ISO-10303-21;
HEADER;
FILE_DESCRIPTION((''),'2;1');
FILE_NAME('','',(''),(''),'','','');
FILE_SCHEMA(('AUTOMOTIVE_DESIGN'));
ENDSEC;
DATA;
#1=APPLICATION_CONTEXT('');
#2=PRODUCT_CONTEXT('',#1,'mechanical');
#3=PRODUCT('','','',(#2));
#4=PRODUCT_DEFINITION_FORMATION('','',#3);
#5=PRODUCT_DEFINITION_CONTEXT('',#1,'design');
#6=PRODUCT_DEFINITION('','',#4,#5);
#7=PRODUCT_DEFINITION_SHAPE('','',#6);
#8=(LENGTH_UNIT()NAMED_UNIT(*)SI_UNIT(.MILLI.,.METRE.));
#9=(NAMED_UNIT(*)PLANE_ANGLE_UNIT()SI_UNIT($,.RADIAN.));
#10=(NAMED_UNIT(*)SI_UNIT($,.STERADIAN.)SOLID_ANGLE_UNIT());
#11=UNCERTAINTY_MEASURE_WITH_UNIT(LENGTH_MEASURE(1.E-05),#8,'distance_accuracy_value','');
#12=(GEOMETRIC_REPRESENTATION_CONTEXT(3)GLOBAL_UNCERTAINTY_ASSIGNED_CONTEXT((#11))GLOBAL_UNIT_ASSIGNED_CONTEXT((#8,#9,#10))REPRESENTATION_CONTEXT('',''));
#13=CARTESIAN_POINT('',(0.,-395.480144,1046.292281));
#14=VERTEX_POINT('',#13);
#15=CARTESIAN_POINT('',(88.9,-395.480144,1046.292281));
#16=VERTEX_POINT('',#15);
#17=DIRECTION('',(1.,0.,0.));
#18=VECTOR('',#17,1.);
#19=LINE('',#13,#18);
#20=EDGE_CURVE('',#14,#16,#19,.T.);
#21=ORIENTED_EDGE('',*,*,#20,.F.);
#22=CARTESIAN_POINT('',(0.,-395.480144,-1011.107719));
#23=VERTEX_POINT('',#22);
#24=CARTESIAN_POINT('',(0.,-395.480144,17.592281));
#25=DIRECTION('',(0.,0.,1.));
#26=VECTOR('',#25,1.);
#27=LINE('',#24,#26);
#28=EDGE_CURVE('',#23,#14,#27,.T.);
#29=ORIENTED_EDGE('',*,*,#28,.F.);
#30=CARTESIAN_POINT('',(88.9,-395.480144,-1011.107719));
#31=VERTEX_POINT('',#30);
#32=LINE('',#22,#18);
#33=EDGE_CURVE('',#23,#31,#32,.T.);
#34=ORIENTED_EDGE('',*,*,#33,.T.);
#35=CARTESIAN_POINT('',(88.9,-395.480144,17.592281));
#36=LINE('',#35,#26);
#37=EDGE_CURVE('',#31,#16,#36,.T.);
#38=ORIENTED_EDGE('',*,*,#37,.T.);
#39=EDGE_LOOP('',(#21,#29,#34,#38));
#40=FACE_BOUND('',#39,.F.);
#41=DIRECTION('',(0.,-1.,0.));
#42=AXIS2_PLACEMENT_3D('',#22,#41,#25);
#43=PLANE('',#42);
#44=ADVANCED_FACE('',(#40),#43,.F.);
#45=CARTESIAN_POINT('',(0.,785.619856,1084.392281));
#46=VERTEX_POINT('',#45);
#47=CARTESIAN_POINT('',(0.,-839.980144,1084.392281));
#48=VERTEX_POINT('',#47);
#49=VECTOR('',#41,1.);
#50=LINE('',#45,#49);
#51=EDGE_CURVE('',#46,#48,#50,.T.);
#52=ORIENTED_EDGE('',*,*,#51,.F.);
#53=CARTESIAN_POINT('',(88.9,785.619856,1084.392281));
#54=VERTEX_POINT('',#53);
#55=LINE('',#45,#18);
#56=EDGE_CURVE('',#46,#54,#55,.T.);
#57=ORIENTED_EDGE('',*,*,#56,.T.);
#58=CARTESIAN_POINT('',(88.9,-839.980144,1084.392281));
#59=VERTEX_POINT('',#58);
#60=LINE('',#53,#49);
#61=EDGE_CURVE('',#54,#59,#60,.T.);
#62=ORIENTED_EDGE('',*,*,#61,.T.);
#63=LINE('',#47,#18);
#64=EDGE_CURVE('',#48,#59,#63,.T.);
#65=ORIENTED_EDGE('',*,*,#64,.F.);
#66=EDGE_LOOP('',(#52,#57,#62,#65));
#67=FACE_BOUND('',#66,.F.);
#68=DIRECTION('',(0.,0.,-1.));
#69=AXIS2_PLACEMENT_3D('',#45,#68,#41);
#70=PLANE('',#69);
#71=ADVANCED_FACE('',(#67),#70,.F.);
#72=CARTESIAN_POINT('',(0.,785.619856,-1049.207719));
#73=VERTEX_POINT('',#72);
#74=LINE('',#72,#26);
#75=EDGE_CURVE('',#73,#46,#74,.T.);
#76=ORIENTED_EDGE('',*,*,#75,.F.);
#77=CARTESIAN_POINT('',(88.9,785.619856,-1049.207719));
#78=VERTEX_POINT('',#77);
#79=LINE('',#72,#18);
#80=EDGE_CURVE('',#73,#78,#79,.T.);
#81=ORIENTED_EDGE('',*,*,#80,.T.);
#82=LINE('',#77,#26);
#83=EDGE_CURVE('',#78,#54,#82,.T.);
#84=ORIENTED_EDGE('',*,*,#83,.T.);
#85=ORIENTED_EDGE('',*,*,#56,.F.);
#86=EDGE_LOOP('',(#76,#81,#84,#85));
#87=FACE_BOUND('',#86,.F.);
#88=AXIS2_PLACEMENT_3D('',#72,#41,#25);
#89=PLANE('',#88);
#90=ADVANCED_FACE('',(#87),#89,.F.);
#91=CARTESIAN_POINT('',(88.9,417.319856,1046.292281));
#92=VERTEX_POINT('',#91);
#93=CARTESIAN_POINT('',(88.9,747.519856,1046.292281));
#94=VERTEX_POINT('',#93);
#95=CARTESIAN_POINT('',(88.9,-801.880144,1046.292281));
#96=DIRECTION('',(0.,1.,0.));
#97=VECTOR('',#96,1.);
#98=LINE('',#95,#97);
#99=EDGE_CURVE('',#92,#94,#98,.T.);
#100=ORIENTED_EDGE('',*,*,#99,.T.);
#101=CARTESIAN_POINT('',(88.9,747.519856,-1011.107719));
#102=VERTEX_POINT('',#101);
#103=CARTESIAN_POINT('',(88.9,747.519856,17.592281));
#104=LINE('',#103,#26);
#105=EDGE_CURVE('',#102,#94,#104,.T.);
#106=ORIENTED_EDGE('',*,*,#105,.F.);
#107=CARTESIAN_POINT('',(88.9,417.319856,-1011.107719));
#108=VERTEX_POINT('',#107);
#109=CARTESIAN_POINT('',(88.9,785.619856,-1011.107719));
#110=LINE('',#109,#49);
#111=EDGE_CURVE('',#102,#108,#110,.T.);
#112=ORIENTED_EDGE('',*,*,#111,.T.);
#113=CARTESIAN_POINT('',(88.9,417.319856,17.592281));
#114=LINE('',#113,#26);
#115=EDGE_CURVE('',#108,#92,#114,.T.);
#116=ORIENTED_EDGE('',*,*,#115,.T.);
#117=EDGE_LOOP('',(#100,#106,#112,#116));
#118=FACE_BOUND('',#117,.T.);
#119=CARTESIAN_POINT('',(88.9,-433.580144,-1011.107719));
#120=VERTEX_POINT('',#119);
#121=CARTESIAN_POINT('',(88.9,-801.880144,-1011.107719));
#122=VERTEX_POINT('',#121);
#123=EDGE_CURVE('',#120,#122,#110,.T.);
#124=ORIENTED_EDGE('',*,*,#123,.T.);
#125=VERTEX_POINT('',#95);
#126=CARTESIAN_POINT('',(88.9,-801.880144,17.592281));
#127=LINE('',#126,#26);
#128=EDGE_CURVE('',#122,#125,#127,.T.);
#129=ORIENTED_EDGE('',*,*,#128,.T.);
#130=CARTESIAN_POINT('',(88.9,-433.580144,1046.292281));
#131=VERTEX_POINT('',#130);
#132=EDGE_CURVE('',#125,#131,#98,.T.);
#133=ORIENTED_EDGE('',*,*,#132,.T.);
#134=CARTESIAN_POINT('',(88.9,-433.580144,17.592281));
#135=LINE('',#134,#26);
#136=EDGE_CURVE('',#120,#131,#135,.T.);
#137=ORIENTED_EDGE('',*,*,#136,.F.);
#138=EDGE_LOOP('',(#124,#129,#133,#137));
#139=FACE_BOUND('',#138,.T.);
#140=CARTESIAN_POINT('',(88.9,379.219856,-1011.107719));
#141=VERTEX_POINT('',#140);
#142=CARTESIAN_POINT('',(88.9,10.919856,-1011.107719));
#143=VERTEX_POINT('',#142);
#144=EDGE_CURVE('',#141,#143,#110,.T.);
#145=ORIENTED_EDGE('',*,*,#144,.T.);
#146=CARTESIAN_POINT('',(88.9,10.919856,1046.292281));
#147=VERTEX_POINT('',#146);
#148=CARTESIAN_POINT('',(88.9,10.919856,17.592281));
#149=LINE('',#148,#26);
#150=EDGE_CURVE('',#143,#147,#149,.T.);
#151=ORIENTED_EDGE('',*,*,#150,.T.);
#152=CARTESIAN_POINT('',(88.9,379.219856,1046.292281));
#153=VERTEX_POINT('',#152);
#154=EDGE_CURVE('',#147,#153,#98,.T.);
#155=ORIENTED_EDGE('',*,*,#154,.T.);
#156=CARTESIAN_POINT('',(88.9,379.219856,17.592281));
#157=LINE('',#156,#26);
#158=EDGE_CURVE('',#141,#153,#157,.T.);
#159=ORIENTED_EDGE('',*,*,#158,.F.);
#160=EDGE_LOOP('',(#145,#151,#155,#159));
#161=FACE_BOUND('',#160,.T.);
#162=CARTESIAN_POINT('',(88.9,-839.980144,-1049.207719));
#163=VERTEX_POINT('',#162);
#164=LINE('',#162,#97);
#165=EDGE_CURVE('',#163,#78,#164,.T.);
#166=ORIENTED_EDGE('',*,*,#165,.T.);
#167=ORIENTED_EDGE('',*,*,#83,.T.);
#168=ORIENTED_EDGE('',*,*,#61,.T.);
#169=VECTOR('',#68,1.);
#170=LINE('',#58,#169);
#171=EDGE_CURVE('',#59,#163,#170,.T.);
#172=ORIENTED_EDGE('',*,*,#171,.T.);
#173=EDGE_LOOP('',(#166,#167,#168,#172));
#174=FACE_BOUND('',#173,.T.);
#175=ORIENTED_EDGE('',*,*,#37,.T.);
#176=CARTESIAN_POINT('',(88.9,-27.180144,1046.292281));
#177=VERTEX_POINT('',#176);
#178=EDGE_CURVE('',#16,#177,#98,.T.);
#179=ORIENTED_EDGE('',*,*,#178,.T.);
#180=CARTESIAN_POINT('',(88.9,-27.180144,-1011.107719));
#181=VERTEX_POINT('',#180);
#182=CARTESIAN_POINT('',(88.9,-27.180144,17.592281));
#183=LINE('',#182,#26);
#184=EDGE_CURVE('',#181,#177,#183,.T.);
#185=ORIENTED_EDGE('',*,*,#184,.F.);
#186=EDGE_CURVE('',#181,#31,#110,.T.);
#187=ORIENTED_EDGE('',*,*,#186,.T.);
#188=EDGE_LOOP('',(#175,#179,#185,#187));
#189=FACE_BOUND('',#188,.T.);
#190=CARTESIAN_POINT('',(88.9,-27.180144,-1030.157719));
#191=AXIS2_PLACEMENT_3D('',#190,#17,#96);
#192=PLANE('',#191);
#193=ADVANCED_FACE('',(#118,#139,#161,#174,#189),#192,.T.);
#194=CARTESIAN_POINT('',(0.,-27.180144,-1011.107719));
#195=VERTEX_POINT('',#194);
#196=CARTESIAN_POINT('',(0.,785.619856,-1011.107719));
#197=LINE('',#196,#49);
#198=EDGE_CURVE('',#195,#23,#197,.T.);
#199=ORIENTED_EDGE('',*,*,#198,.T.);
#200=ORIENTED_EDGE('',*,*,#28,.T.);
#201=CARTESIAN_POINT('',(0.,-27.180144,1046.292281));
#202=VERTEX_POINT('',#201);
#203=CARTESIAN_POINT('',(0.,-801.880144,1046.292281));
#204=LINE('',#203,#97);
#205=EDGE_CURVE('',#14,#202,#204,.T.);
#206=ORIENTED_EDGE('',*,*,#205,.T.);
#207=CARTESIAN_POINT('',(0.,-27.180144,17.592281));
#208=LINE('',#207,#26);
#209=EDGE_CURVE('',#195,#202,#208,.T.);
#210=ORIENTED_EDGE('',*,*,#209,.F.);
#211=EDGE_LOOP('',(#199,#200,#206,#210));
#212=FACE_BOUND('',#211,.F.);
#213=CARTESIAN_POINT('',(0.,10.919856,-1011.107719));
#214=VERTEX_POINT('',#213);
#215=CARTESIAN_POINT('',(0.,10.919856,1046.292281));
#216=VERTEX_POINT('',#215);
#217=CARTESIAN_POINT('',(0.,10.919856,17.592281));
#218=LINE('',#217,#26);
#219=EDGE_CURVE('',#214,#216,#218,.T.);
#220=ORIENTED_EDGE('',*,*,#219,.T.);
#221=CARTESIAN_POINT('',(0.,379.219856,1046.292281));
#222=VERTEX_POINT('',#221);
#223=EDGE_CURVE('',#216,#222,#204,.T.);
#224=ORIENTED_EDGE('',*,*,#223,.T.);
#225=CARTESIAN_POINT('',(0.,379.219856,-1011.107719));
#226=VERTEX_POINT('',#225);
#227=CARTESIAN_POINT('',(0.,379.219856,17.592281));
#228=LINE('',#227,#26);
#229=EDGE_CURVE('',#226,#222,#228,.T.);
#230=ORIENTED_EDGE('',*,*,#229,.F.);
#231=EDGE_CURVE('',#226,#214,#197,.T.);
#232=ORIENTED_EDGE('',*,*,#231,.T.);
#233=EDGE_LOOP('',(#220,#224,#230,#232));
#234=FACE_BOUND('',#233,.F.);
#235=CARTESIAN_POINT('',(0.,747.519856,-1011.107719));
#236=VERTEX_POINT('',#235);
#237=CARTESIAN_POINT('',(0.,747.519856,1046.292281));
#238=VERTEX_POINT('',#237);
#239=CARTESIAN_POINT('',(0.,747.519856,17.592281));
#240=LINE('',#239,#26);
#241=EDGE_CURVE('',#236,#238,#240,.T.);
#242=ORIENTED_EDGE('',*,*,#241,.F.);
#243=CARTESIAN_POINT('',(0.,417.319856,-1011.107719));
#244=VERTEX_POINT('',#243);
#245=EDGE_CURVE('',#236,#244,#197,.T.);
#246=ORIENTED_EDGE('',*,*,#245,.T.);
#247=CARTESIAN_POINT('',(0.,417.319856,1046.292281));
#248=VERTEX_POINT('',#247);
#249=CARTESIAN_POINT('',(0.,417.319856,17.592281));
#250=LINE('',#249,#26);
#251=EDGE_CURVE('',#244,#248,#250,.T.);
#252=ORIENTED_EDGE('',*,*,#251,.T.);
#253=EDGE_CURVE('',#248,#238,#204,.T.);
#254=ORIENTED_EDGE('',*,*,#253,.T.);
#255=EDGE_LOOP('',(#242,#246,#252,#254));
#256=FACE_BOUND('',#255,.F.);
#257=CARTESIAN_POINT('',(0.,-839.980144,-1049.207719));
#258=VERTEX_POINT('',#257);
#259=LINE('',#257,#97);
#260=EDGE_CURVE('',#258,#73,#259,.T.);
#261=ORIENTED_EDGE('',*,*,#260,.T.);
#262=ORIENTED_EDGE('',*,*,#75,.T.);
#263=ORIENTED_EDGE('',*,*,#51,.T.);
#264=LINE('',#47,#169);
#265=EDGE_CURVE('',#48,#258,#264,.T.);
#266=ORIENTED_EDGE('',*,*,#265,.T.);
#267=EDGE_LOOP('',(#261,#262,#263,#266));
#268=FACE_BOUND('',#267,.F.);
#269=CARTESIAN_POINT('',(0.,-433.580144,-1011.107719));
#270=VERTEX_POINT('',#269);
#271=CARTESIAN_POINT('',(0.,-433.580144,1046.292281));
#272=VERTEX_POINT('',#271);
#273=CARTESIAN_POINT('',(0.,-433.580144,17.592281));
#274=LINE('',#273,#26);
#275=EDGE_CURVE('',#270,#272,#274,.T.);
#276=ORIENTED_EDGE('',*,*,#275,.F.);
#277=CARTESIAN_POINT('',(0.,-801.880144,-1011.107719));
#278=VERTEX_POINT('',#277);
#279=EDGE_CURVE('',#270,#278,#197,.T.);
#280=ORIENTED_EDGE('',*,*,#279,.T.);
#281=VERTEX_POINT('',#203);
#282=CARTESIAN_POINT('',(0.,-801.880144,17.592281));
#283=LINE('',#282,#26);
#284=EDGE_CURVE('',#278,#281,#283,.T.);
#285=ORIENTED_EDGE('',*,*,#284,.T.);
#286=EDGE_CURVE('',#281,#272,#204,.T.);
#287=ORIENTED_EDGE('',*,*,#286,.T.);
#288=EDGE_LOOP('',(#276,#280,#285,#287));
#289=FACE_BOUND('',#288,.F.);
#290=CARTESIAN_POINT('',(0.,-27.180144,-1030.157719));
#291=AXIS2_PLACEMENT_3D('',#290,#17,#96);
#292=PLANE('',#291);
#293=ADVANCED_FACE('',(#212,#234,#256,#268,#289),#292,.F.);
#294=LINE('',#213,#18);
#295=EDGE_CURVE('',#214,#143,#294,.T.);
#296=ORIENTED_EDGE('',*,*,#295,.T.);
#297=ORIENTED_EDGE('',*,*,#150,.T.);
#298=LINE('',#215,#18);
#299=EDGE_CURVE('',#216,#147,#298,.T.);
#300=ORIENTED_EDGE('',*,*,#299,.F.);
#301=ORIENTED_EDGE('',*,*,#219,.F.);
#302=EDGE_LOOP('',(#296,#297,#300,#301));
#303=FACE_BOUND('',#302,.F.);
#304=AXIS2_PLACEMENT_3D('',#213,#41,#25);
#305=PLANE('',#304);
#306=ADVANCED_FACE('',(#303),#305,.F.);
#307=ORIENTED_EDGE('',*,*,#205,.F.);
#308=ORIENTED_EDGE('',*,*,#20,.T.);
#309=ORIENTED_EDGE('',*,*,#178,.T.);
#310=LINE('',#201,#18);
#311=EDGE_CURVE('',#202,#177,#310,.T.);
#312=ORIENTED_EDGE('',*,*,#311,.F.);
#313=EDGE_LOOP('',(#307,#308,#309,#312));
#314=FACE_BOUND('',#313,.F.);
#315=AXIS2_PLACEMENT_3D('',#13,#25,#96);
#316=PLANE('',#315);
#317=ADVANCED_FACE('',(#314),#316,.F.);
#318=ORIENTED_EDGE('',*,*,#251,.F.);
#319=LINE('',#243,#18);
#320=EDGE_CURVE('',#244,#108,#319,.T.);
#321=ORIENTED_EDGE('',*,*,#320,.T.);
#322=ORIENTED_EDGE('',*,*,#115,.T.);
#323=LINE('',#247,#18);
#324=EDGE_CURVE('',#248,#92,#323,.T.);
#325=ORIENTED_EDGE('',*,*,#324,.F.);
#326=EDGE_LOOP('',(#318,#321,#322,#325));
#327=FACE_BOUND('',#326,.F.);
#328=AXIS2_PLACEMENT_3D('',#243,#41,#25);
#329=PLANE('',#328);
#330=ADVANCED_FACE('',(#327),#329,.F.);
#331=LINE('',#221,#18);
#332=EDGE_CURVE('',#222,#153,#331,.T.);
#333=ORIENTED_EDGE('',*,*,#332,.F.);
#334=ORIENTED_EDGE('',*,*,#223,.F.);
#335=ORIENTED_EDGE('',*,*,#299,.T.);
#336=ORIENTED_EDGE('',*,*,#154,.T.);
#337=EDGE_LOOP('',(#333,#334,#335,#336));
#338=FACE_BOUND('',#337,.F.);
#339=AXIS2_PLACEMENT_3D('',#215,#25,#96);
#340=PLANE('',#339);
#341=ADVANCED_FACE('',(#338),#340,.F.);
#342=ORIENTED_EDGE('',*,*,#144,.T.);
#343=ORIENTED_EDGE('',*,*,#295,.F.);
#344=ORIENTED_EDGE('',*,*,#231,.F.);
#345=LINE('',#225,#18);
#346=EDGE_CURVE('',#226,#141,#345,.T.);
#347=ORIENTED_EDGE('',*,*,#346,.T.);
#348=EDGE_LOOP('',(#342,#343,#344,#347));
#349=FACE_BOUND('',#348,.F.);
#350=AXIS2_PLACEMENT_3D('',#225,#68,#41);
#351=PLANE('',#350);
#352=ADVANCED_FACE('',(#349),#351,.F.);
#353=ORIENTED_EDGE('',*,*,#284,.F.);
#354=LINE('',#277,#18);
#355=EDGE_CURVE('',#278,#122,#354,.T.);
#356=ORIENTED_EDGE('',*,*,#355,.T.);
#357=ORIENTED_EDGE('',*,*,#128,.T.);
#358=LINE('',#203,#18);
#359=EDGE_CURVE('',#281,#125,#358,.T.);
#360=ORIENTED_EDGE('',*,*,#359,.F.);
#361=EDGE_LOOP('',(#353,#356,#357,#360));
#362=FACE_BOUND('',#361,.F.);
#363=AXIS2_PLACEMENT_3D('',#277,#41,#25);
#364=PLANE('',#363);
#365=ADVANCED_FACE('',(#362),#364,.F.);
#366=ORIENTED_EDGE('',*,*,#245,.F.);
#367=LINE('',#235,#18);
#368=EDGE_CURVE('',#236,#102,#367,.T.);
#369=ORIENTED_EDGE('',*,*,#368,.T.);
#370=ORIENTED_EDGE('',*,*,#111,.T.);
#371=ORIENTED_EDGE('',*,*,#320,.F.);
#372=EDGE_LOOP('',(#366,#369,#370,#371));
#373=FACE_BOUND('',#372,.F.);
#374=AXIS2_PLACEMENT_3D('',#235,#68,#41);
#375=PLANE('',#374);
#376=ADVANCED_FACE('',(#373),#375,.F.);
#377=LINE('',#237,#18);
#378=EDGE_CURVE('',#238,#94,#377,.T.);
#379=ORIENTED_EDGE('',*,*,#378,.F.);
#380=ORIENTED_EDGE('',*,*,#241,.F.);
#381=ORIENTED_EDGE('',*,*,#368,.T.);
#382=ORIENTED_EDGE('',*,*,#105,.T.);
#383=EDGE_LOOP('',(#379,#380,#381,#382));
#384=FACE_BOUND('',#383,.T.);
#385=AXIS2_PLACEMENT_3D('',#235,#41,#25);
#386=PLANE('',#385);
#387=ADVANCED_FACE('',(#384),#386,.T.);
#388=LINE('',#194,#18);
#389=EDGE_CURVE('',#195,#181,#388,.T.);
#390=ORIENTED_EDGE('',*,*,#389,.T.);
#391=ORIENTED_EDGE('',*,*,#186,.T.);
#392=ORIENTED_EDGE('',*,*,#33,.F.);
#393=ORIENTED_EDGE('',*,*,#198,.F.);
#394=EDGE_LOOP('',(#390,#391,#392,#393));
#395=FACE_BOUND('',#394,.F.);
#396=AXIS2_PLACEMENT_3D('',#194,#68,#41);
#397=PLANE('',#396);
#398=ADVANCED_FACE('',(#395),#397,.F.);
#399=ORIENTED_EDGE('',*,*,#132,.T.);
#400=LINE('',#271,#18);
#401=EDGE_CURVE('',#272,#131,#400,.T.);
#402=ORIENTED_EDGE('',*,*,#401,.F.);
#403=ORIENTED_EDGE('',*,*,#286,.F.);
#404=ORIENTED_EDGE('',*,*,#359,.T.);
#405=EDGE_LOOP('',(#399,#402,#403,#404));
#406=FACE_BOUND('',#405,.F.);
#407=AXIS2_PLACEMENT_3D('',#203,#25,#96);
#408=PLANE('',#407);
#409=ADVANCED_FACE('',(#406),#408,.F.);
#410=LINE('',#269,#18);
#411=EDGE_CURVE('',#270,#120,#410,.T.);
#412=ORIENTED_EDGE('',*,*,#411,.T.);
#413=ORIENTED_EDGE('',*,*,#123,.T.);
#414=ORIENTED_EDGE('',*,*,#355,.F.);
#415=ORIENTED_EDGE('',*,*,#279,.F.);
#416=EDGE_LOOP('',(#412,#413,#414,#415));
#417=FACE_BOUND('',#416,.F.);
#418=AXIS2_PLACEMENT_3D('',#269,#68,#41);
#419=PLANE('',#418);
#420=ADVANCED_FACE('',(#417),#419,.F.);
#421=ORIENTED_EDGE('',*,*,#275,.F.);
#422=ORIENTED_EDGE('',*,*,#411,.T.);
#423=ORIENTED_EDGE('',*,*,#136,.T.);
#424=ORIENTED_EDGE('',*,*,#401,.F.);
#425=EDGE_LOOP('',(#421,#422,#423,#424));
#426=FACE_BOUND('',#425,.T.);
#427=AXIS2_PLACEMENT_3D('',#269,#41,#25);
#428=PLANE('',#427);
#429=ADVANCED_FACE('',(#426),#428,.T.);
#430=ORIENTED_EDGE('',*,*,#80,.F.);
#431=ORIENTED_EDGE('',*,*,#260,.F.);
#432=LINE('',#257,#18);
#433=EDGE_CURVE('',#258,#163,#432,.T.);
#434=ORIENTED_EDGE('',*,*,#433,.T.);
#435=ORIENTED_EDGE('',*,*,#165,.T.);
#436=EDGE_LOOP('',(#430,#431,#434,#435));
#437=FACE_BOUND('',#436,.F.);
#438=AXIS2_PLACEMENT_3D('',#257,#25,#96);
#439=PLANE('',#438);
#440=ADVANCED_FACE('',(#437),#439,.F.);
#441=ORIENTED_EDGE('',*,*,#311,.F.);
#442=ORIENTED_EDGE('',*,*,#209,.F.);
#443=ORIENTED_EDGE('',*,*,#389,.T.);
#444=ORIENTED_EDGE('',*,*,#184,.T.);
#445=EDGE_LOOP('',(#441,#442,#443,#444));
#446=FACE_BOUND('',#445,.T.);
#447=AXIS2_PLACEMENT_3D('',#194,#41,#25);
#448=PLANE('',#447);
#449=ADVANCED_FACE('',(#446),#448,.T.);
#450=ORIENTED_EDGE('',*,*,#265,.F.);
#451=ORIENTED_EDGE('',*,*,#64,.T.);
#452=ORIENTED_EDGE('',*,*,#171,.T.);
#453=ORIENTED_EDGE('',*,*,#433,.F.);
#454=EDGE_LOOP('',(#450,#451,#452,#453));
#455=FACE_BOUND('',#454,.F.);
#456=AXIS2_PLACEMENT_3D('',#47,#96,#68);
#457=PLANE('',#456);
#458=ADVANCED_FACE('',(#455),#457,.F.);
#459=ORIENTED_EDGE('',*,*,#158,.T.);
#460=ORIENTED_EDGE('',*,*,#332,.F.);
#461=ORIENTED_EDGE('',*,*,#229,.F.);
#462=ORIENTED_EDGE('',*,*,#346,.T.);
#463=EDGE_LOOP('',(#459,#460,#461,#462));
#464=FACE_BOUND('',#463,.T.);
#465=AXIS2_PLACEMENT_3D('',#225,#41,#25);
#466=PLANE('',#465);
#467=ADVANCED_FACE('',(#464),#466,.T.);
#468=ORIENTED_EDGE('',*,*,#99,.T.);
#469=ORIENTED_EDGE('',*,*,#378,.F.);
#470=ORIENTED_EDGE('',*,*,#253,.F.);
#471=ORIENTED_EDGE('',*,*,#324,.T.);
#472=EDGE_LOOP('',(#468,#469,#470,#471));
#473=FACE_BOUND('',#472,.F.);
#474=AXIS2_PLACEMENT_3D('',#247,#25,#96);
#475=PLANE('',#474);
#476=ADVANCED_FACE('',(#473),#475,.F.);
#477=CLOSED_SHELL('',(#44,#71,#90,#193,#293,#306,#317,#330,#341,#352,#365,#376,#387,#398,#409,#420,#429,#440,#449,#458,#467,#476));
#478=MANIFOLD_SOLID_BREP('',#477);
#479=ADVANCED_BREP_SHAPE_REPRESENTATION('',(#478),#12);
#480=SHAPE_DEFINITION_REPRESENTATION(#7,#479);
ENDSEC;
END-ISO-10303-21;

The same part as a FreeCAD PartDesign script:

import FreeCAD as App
import Part
import Sketcher

V = App.Vector
Q = App.Units.Quantity


def add_polygon(sketch, points):
    """Adds a closed chain of lines whose ends are joined by coincident constraints."""
    first, n = sketch.GeometryCount, len(points)
    for a, b in zip(points, points[1:] + points[:1]):
        sketch.addGeometry(Part.LineSegment(App.Vector(*a, 0), App.Vector(*b, 0)), False)
    for i in range(n):
        sketch.addConstraint(Sketcher.Constraint("Coincident", first + i, 2, first + (i + 1) % n, 1))

doc = App.newDocument("Part")
body = doc.addObject("PartDesign::Body", "Body")

# Sketch on YZ plane
sketch1 = body.newObject("Sketcher::SketchObject", "Sketch")
sketch1.AttachmentSupport = (doc.getObject("YZ_Plane"), [""])
sketch1.MapMode = "FlatFace"
add_polygon(sketch1, [(-840, -1049), (786, -1049), (786, 1084), (-840, 1084)])  # lines 0-3
add_polygon(sketch1, [(748, 1046), (748, -1011), (417, -1011), (417, 1046)])  # lines 4-7
add_polygon(sketch1, [(379, -1011), (11, -1011), (11, 1046), (379, 1046)])  # lines 8-11
add_polygon(sketch1, [(-27, -1011), (-395, -1011), (-395, 1046), (-27, 1046)])  # lines 12-15
add_polygon(sketch1, [(-434, -1011), (-802, -1011), (-802, 1046), (-434, 1046)])  # lines 16-19
sketch1.addConstraint([
    Sketcher.Constraint("Horizontal", 0),
    Sketcher.Constraint("Vertical", 1),
    Sketcher.Constraint("Horizontal", 2),
    Sketcher.Constraint("Vertical", 3),
    Sketcher.Constraint("Vertical", 4),
    Sketcher.Constraint("Horizontal", 5),
    Sketcher.Constraint("Vertical", 6),
    Sketcher.Constraint("Horizontal", 7),
    Sketcher.Constraint("Horizontal", 8),
    Sketcher.Constraint("Vertical", 9),
    Sketcher.Constraint("Horizontal", 10),
    Sketcher.Constraint("Vertical", 11),
    Sketcher.Constraint("Horizontal", 12),
    Sketcher.Constraint("Vertical", 13),
    Sketcher.Constraint("Horizontal", 14),
    Sketcher.Constraint("Vertical", 15),
    Sketcher.Constraint("Horizontal", 16),
    Sketcher.Constraint("Vertical", 17),
    Sketcher.Constraint("Horizontal", 18),
    Sketcher.Constraint("Vertical", 19),
    Sketcher.Constraint("Horizontal", 5, 2, 8, 2),
    Sketcher.Constraint("Horizontal", 7, 2, 9, 2),
    Sketcher.Constraint("Horizontal", 11, 2, 12, 2),
    Sketcher.Constraint("Horizontal", 10, 2, 13, 2),
    Sketcher.Constraint("Horizontal", 15, 2, 16, 2),
    Sketcher.Constraint("Horizontal", 14, 2, 17, 2),
    Sketcher.Constraint("Equal", 10, 12),
    Sketcher.Constraint("Equal", 14, 16),
    Sketcher.Constraint("DistanceX", 0, 1, 0, 2, Q("64 in")),
    Sketcher.Constraint("DistanceX", 5, 2, 5, 1, Q("13 in")),
    Sketcher.Constraint("DistanceY", 1, 1, 1, 2, Q("84 in")),
    Sketcher.Constraint("DistanceY", 4, 2, 4, 1, Q("81 in")),
    Sketcher.Constraint("DistanceX", 8, 2, 8, 1, Q("14.5 in")),
    Sketcher.Constraint("DistanceX", 8, 2, 5, 2, Q("16 in")),
    Sketcher.Constraint("DistanceX", 10, 2, 1, 2, Q("16 in")),
    Sketcher.Constraint("DistanceX", 12, 2, 8, 2, Q("16 in")),
    Sketcher.Constraint("DistanceX", 16, 2, 12, 2, Q("16 in")),
    Sketcher.Constraint("DistanceY", 0, 2, 4, 2, Q("1.5 in")),
    Sketcher.Constraint("DistanceY", 0, 2, -1, 1, Q("1049.207719 mm")),
    Sketcher.Constraint("DistanceX", -1, 1, 0, 2, Q("785.619856 mm")),
])
pad1 = body.newObject("PartDesign::Pad", "Pad")
pad1.Profile = sketch1
pad1.Length = Q("3.5 in")

doc.recompute()
